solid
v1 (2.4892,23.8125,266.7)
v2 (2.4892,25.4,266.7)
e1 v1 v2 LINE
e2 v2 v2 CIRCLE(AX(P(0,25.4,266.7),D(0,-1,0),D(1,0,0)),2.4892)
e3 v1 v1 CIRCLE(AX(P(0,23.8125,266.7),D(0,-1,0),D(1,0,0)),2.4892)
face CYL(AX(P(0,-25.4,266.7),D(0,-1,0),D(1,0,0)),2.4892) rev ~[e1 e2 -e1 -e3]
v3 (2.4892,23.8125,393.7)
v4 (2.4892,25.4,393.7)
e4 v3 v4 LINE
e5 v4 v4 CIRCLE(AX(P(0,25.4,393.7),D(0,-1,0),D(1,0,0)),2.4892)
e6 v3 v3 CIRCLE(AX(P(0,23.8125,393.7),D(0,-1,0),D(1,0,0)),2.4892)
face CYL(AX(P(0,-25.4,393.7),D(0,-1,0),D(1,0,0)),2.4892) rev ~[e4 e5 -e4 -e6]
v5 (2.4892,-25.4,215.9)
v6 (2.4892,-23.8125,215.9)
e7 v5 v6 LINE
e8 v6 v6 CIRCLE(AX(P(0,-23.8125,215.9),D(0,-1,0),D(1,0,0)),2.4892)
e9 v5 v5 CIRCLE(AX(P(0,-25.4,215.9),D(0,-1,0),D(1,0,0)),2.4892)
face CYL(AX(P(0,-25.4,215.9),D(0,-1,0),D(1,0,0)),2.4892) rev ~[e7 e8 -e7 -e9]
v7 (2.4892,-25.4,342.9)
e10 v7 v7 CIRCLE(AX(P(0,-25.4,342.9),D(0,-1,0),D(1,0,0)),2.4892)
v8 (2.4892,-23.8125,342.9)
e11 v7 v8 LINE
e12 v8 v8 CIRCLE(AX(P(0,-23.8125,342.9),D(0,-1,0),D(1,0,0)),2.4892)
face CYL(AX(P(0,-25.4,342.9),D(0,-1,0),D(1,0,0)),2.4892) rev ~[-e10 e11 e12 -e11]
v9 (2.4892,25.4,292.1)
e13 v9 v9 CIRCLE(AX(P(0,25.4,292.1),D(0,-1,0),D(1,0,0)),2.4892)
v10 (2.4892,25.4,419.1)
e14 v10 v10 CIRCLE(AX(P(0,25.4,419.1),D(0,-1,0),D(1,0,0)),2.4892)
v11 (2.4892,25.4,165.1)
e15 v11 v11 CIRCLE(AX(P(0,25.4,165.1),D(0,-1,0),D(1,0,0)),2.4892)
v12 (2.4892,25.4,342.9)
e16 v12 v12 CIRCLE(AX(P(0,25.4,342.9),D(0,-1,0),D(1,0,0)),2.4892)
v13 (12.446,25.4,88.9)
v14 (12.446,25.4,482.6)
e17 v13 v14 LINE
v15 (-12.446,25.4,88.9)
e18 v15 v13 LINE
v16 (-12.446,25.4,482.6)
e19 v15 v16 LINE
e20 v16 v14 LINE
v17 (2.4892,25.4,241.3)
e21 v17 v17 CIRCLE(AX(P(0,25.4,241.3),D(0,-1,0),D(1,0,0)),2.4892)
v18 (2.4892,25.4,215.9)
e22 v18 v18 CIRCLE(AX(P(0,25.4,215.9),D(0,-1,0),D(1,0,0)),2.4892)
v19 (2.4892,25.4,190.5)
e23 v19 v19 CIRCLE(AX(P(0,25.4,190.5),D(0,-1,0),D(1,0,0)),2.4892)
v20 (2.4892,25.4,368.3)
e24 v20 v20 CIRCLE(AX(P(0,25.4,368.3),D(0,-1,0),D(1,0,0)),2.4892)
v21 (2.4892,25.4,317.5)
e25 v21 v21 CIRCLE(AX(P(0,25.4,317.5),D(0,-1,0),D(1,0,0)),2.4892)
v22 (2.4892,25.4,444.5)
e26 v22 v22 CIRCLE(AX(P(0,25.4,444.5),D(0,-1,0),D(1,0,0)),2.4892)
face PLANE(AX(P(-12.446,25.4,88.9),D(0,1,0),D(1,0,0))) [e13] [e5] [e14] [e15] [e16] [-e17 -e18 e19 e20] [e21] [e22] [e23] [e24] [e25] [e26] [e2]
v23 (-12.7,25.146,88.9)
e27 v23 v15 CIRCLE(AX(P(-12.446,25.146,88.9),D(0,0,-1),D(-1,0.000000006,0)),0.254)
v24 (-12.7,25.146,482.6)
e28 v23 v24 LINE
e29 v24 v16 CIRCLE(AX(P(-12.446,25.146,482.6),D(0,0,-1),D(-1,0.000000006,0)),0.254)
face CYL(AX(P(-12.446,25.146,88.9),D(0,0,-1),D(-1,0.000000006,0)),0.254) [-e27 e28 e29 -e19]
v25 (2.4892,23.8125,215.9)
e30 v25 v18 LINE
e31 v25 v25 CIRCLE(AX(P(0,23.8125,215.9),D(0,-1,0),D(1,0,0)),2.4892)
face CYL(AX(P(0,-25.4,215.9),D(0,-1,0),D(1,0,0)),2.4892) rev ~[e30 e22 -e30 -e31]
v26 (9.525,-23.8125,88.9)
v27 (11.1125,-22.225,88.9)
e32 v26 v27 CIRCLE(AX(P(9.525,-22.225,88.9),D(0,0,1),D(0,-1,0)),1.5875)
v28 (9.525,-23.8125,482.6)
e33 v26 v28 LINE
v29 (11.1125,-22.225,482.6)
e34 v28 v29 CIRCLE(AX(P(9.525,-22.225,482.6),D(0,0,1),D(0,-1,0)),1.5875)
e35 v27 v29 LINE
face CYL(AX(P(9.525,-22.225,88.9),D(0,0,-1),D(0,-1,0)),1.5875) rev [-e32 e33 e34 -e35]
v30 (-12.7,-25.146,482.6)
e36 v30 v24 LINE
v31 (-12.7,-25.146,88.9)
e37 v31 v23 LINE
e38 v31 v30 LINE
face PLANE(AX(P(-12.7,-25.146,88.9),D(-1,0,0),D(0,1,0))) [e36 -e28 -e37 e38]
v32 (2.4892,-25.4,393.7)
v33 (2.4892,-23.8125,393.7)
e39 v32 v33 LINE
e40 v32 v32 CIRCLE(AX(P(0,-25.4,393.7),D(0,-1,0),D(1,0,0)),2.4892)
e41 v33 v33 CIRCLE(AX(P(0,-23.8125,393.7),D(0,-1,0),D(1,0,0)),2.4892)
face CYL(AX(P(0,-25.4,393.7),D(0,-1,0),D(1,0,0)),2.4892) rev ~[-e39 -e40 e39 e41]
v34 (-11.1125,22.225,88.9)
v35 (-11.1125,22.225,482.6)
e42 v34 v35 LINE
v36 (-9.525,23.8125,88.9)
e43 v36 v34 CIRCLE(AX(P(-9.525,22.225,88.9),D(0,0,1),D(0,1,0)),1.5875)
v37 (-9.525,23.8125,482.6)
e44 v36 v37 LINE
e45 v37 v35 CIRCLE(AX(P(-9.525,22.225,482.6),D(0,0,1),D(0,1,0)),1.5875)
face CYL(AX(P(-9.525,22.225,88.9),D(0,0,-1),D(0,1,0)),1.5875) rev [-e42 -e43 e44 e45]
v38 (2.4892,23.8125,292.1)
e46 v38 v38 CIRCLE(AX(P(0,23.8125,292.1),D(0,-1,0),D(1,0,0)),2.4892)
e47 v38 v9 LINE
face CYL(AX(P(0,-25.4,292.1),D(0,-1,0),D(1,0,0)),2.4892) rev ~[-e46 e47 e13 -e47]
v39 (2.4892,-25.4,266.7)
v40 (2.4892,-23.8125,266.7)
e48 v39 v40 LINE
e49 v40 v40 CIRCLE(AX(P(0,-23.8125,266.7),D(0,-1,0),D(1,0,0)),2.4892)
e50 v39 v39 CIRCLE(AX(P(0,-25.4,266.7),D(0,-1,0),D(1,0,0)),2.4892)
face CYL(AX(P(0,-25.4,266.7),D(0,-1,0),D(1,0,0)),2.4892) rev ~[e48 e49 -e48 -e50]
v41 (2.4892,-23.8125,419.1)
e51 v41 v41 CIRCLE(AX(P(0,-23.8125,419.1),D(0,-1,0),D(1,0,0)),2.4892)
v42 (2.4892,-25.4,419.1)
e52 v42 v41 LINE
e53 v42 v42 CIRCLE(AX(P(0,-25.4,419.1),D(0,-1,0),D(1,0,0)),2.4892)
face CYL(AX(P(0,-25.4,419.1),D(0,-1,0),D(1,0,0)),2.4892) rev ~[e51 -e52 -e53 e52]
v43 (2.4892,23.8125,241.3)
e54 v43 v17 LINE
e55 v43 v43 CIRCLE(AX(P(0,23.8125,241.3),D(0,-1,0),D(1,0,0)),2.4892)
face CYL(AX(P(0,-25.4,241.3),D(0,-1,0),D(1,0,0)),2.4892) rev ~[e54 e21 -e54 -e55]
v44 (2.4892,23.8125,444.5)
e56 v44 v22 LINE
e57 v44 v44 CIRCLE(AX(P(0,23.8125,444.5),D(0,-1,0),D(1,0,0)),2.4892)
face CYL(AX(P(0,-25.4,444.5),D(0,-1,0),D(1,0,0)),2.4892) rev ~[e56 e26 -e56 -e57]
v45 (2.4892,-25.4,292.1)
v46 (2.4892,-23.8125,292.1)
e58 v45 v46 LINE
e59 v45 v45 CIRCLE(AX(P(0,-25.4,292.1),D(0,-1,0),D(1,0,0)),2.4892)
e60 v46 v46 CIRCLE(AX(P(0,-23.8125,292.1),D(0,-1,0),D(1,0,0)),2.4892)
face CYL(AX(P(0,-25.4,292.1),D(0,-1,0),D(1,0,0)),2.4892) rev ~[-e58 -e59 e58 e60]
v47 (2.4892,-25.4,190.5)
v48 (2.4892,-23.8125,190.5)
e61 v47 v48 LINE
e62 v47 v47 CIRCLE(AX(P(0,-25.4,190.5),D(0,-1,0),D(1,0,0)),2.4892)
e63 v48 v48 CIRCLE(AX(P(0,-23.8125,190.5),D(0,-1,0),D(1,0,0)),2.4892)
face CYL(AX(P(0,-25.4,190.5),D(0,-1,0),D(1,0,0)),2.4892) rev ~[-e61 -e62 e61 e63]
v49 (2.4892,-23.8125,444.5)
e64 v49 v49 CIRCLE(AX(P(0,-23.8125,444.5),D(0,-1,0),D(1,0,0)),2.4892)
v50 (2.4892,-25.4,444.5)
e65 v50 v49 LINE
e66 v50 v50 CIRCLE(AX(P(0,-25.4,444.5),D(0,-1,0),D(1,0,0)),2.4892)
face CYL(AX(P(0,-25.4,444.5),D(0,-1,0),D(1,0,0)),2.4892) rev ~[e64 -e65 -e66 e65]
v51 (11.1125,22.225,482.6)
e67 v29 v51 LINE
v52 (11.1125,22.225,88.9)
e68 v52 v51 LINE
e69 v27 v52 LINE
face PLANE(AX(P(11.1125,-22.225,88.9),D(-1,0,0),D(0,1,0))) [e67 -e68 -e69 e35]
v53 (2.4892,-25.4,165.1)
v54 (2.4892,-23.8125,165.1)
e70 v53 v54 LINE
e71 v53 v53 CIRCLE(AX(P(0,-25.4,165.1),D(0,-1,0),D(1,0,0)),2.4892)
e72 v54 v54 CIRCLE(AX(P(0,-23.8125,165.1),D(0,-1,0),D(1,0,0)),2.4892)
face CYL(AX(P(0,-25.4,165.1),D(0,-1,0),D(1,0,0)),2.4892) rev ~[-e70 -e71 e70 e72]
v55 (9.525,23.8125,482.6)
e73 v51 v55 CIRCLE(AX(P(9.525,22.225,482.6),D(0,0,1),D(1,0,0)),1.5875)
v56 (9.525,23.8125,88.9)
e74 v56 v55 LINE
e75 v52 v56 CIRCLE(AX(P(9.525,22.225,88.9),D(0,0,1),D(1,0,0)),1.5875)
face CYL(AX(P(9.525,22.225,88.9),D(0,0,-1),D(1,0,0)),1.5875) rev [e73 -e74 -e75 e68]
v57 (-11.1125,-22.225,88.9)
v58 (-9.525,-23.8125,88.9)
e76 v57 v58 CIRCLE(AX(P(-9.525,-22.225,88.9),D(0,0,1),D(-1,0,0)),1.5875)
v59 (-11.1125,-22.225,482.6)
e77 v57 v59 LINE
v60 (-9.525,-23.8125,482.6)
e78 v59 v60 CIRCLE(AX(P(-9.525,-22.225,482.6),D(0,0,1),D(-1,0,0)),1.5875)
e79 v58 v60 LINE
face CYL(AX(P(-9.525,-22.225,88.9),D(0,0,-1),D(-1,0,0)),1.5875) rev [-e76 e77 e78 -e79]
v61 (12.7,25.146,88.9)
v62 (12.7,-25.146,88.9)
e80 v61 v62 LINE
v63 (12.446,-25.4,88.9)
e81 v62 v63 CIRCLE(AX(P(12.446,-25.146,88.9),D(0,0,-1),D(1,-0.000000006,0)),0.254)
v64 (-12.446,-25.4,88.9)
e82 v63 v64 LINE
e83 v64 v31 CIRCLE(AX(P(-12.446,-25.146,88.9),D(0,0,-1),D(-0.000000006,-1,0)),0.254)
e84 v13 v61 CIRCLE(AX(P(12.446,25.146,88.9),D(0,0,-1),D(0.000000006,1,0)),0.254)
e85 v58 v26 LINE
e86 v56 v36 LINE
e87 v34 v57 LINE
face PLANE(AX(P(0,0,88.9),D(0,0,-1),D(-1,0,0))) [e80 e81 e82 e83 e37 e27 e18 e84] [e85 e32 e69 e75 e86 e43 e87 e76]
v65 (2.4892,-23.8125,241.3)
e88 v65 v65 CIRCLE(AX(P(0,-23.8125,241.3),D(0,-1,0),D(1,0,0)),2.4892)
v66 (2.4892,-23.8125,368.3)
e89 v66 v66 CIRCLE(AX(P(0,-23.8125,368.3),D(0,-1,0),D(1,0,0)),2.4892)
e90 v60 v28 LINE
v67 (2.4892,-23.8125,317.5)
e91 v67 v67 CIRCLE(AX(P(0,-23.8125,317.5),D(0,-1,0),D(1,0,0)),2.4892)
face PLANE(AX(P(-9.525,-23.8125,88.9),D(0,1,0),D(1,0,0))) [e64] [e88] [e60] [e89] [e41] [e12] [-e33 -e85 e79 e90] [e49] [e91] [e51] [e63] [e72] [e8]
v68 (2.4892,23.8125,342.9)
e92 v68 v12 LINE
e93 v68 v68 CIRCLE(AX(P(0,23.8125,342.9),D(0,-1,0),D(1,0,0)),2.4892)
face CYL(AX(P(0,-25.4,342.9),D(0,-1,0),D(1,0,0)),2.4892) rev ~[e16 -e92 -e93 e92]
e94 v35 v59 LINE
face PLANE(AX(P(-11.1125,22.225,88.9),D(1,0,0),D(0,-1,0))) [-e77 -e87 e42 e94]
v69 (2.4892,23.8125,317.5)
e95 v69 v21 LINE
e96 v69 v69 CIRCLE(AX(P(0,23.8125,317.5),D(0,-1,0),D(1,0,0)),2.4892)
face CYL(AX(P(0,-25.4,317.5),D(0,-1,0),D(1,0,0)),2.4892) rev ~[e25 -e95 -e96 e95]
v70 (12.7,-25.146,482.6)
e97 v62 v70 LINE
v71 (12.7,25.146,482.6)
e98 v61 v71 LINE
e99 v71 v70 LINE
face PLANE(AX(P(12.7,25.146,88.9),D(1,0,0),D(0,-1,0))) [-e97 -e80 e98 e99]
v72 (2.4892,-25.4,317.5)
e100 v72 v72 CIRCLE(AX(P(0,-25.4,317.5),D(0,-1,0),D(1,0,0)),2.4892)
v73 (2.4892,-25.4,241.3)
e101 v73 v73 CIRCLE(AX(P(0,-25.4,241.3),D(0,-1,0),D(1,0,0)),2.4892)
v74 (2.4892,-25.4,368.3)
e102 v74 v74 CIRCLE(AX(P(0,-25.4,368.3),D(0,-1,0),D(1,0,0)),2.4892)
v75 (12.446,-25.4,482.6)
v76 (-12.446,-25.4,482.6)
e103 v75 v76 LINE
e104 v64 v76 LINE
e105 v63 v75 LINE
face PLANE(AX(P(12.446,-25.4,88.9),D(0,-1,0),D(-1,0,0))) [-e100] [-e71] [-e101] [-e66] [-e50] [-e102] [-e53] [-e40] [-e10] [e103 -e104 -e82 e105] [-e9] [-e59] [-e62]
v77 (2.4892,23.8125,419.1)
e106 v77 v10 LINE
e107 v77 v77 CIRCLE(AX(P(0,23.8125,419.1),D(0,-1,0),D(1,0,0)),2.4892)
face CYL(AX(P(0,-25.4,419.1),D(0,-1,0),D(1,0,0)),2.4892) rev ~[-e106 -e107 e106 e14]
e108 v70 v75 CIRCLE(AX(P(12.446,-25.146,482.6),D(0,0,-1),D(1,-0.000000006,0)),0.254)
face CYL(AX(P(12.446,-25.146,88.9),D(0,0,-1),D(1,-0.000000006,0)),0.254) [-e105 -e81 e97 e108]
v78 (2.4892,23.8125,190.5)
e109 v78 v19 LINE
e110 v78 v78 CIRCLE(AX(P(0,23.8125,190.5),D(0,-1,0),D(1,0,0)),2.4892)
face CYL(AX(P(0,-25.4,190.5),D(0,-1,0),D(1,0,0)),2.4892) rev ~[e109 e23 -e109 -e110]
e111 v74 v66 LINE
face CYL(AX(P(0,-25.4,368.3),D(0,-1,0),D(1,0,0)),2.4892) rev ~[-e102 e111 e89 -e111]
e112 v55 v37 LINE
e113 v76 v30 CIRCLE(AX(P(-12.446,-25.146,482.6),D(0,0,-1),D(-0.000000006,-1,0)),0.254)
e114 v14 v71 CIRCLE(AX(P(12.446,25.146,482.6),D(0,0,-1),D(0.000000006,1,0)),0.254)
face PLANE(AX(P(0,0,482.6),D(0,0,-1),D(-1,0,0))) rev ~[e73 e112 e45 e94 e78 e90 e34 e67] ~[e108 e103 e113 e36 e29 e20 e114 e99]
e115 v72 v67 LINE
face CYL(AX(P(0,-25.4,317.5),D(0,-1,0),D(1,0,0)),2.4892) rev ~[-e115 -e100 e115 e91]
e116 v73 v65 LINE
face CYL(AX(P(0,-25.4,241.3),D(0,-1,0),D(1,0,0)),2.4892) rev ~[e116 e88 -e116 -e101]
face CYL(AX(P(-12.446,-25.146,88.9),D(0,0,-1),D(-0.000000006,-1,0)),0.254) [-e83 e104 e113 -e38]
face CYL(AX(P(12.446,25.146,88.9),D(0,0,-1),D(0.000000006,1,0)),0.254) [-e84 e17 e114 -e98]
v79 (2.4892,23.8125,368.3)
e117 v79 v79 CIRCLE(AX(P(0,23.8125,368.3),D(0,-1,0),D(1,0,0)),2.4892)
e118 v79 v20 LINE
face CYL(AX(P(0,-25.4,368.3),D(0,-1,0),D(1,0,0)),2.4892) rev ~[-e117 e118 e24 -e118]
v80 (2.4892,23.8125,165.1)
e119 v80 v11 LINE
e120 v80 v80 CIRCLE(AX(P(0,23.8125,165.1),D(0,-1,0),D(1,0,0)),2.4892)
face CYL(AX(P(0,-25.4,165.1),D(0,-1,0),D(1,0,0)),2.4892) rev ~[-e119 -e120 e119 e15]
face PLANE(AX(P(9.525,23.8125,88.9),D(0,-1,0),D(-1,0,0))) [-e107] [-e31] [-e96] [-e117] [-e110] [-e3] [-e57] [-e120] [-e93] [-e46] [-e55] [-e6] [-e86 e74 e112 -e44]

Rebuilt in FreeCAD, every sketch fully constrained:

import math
import FreeCAD as App
import Part
import Sketcher

V = App.Vector
Q = App.Units.Quantity

doc = App.newDocument("Part")
body = doc.addObject("PartDesign::Body", "Body")

# Sketch on XY plane
sketch1 = body.newObject("Sketcher::SketchObject", "Sketch")
sketch1.AttachmentSupport = (doc.getObject("XY_Plane"), [""])
sketch1.MapMode = "FlatFace"
sketch1.AttachmentOffset = App.Placement(V(0, 0, 3.5 * 25.4), App.Rotation())
sketch1.addGeometry(Part.LineSegment(V(12.7, 25.146, 0), V(12.7, -25.146, 0)), False)
sketch1.addGeometry(Part.ArcOfCircle(Part.Circle(V(12.446, -25.146, 0), V(0, 0, 1), 0.254), math.radians(-90), math.radians(0)), False)
sketch1.addGeometry(Part.LineSegment(V(12.446, -25.4, 0), V(-12.446, -25.4, 0)), False)
sketch1.addGeometry(Part.ArcOfCircle(Part.Circle(V(-12.446, -25.146, 0), V(0, 0, 1), 0.254), math.radians(-180), math.radians(-90)), False)
sketch1.addGeometry(Part.LineSegment(V(-12.7, -25.146, 0), V(-12.7, 25.146, 0)), False)
sketch1.addGeometry(Part.ArcOfCircle(Part.Circle(V(-12.446, 25.146, 0), V(0, 0, 1), 0.254), math.radians(90), math.radians(180)), False)
sketch1.addGeometry(Part.LineSegment(V(-12.446, 25.4, 0), V(12.446, 25.4, 0)), False)
sketch1.addGeometry(Part.ArcOfCircle(Part.Circle(V(12.446, 25.146, 0), V(0, 0, 1), 0.254), math.radians(0), math.radians(90)), False)
sketch1.addGeometry(Part.ArcOfCircle(Part.Circle(V(9.525, -22.225, 0), V(0, 0, 1), 1.5875), math.radians(-90), math.radians(0)), False)
sketch1.addGeometry(Part.LineSegment(V(11.1125, -22.225, 0), V(11.1125, 22.225, 0)), False)
sketch1.addGeometry(Part.ArcOfCircle(Part.Circle(V(9.525, 22.225, 0), V(0, 0, 1), 1.5875), math.radians(0), math.radians(90)), False)
sketch1.addGeometry(Part.LineSegment(V(9.525, 23.8125, 0), V(-9.525, 23.8125, 0)), False)
sketch1.addGeometry(Part.ArcOfCircle(Part.Circle(V(-9.525, 22.225, 0), V(0, 0, 1), 1.5875), math.radians(90), math.radians(180)), False)
sketch1.addGeometry(Part.LineSegment(V(-11.1125, 22.225, 0), V(-11.1125, -22.225, 0)), False)
sketch1.addGeometry(Part.ArcOfCircle(Part.Circle(V(-9.525, -22.225, 0), V(0, 0, 1), 1.5875), math.radians(180), math.radians(270)), False)
sketch1.addGeometry(Part.LineSegment(V(-9.525, -23.8125, 0), V(9.525, -23.8125, 0)), False)
sketch1.addConstraint(Sketcher.Constraint("Tangent", 0, 2, 1, 2))
sketch1.addConstraint(Sketcher.Constraint("Tangent", 1, 1, 2, 1))
sketch1.addConstraint(Sketcher.Constraint("Tangent", 2, 2, 3, 2))
sketch1.addConstraint(Sketcher.Constraint("Tangent", 3, 1, 4, 1))
sketch1.addConstraint(Sketcher.Constraint("Tangent", 4, 2, 5, 2))
sketch1.addConstraint(Sketcher.Constraint("Tangent", 5, 1, 6, 1))
sketch1.addConstraint(Sketcher.Constraint("Tangent", 6, 2, 7, 2))
sketch1.addConstraint(Sketcher.Constraint("Tangent", 7, 1, 0, 1))
sketch1.addConstraint(Sketcher.Constraint("Tangent", 8, 2, 9, 1))
sketch1.addConstraint(Sketcher.Constraint("Tangent", 9, 2, 10, 1))
sketch1.addConstraint(Sketcher.Constraint("Tangent", 10, 2, 11, 1))
sketch1.addConstraint(Sketcher.Constraint("Tangent", 11, 2, 12, 1))
sketch1.addConstraint(Sketcher.Constraint("Tangent", 12, 2, 13, 1))
sketch1.addConstraint(Sketcher.Constraint("Tangent", 13, 2, 14, 1))
sketch1.addConstraint(Sketcher.Constraint("Tangent", 14, 2, 15, 1))
sketch1.addConstraint(Sketcher.Constraint("Tangent", 15, 2, 8, 1))
sketch1.addConstraint(Sketcher.Constraint("Vertical", 0))
sketch1.addConstraint(Sketcher.Constraint("Horizontal", 2))
sketch1.addConstraint(Sketcher.Constraint("Vertical", 4))
sketch1.addConstraint(Sketcher.Constraint("Horizontal", 6))
sketch1.addConstraint(Sketcher.Constraint("Vertical", 9))
sketch1.addConstraint(Sketcher.Constraint("Horizontal", 11))
sketch1.addConstraint(Sketcher.Constraint("Vertical", 13))
sketch1.addConstraint(Sketcher.Constraint("Horizontal", 15))
sketch1.addConstraint(Sketcher.Constraint("Equal", 1, 3))
sketch1.addConstraint(Sketcher.Constraint("Equal", 3, 5))
sketch1.addConstraint(Sketcher.Constraint("Equal", 5, 7))
sketch1.addConstraint(Sketcher.Constraint("Equal", 8, 10))
sketch1.addConstraint(Sketcher.Constraint("Equal", 10, 12))
sketch1.addConstraint(Sketcher.Constraint("Equal", 12, 14))
sketch1.addConstraint(Sketcher.Constraint("Symmetric", 1, 3, 5, 3, -1, 1))
sketch1.addConstraint(Sketcher.Constraint("Symmetric", 8, 3, 12, 3, -1, 1))
sketch1.addConstraint(Sketcher.Constraint("Radius", 1, Q("0.01 in")))
sketch1.addConstraint(Sketcher.Constraint("DistanceY", 1, 1, -1, 1, Q("1 in")))
sketch1.addConstraint(Sketcher.Constraint("Radius", 8, Q("0.0625 in")))
sketch1.addConstraint(Sketcher.Constraint("DistanceX", 2, 2, 2, 1, Q("0.98 in")))
sketch1.addConstraint(Sketcher.Constraint("DistanceX", 11, 2, 11, 1, Q("0.75 in")))
sketch1.addConstraint(Sketcher.Constraint("DistanceY", 9, 1, 9, 2, Q("1.75 in")))
pad1 = body.newObject("PartDesign::Pad", "Pad")
pad1.Profile = sketch1
pad1.Length = Q("15.5 in")

# Sketch on XZ plane
sketch2 = body.newObject("Sketcher::SketchObject", "Sketch001")
sketch2.AttachmentSupport = (doc.getObject("XZ_Plane"), [""])
sketch2.MapMode = "FlatFace"
sketch2.AttachmentOffset = App.Placement(V(0, 0, 1 * 25.4), App.Rotation())
sketch2.addGeometry(Part.Circle(V(0, 165.1, 0), V(0, 0, 1), 2.4892), False)
sketch2.addGeometry(Part.Circle(V(0, 190.5, 0), V(0, 0, 1), 2.4892), False)
sketch2.addGeometry(Part.Circle(V(0, 215.9, 0), V(0, 0, 1), 2.4892), False)
sketch2.addGeometry(Part.Circle(V(0, 241.3, 0), V(0, 0, 1), 2.4892), False)
sketch2.addGeometry(Part.Circle(V(0, 266.7, 0), V(0, 0, 1), 2.4892), False)
sketch2.addGeometry(Part.Circle(V(0, 292.1, 0), V(0, 0, 1), 2.4892), False)
sketch2.addGeometry(Part.Circle(V(0, 317.5, 0), V(0, 0, 1), 2.4892), False)
sketch2.addGeometry(Part.Circle(V(0, 342.9, 0), V(0, 0, 1), 2.4892), False)
sketch2.addGeometry(Part.Circle(V(0, 368.3, 0), V(0, 0, 1), 2.4892), False)
sketch2.addGeometry(Part.Circle(V(0, 393.7, 0), V(0, 0, 1), 2.4892), False)
sketch2.addGeometry(Part.Circle(V(0, 419.1, 0), V(0, 0, 1), 2.4892), False)
sketch2.addGeometry(Part.Circle(V(0, 444.5, 0), V(0, 0, 1), 2.4892), False)
sketch2.addConstraint(Sketcher.Constraint("Equal", 0, 1))
sketch2.addConstraint(Sketcher.Constraint("Equal", 1, 2))
sketch2.addConstraint(Sketcher.Constraint("Equal", 2, 3))
sketch2.addConstraint(Sketcher.Constraint("Equal", 3, 4))
sketch2.addConstraint(Sketcher.Constraint("Equal", 4, 5))
sketch2.addConstraint(Sketcher.Constraint("Equal", 5, 6))
sketch2.addConstraint(Sketcher.Constraint("Equal", 6, 7))
sketch2.addConstraint(Sketcher.Constraint("Equal", 7, 8))
sketch2.addConstraint(Sketcher.Constraint("Equal", 8, 9))
sketch2.addConstraint(Sketcher.Constraint("Equal", 9, 10))
sketch2.addConstraint(Sketcher.Constraint("Equal", 10, 11))
sketch2.addConstraint(Sketcher.Constraint("PointOnObject", 0, 3, -2))
sketch2.addConstraint(Sketcher.Constraint("PointOnObject", 1, 3, -2))
sketch2.addConstraint(Sketcher.Constraint("PointOnObject", 2, 3, -2))
sketch2.addConstraint(Sketcher.Constraint("PointOnObject", 3, 3, -2))
sketch2.addConstraint(Sketcher.Constraint("PointOnObject", 4, 3, -2))
sketch2.addConstraint(Sketcher.Constraint("PointOnObject", 5, 3, -2))
sketch2.addConstraint(Sketcher.Constraint("PointOnObject", 6, 3, -2))
sketch2.addConstraint(Sketcher.Constraint("PointOnObject", 7, 3, -2))
sketch2.addConstraint(Sketcher.Constraint("PointOnObject", 8, 3, -2))
sketch2.addConstraint(Sketcher.Constraint("PointOnObject", 9, 3, -2))
sketch2.addConstraint(Sketcher.Constraint("PointOnObject", 10, 3, -2))
sketch2.addConstraint(Sketcher.Constraint("PointOnObject", 11, 3, -2))
sketch2.addConstraint(Sketcher.Constraint("Diameter", 0, Q("0.196 in")))
sketch2.addConstraint(Sketcher.Constraint("DistanceY", 0, 3, 1, 3, Q("1 in")))
sketch2.addConstraint(Sketcher.Constraint("DistanceY", 1, 3, 2, 3, Q("1 in")))
sketch2.addConstraint(Sketcher.Constraint("DistanceY", 2, 3, 3, 3, Q("1 in")))
sketch2.addConstraint(Sketcher.Constraint("DistanceY", 3, 3, 4, 3, Q("1 in")))
sketch2.addConstraint(Sketcher.Constraint("DistanceY", 4, 3, 5, 3, Q("1 in")))
sketch2.addConstraint(Sketcher.Constraint("DistanceY", 5, 3, 6, 3, Q("1 in")))
sketch2.addConstraint(Sketcher.Constraint("DistanceY", 6, 3, 7, 3, Q("1 in")))
sketch2.addConstraint(Sketcher.Constraint("DistanceY", 7, 3, 8, 3, Q("1 in")))
sketch2.addConstraint(Sketcher.Constraint("DistanceY", 8, 3, 9, 3, Q("1 in")))
sketch2.addConstraint(Sketcher.Constraint("DistanceY", 9, 3, 10, 3, Q("1 in")))
sketch2.addConstraint(Sketcher.Constraint("DistanceY", 10, 3, 11, 3, Q("1 in")))
sketch2.addConstraint(Sketcher.Constraint("DistanceY", -1, 1, 0, 3, Q("6.5 in")))
pocket1 = body.newObject("PartDesign::Pocket", "Pocket")
pocket1.Profile = sketch2
pocket1.Type = "ThroughAll"

doc.recompute()
